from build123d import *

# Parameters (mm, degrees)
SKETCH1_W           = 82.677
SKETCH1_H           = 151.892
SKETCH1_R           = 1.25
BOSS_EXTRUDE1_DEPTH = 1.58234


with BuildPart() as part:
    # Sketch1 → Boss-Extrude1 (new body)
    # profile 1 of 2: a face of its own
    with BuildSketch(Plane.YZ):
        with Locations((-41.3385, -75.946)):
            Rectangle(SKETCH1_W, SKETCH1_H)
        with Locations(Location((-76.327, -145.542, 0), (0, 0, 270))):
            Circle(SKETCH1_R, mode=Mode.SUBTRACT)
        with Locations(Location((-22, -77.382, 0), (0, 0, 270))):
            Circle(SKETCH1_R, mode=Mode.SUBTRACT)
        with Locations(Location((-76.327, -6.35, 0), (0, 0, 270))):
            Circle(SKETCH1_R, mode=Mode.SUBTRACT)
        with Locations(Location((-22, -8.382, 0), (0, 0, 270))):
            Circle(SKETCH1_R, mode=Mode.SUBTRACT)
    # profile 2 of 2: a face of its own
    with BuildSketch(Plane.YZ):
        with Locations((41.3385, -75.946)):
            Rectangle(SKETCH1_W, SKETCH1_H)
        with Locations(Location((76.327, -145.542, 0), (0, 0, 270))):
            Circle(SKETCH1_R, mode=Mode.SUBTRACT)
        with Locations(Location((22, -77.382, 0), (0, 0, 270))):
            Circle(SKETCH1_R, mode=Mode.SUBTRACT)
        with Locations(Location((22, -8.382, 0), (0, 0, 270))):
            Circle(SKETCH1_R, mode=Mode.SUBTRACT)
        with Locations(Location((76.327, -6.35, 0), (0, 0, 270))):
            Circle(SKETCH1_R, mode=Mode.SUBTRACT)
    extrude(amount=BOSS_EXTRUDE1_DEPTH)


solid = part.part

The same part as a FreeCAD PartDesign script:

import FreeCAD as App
import Part
import Sketcher

V = App.Vector
Q = App.Units.Quantity


def add_polygon(sketch, points):
    """Adds a closed chain of lines whose ends are joined by coincident constraints."""
    first, n = sketch.GeometryCount, len(points)
    for a, b in zip(points, points[1:] + points[:1]):
        sketch.addGeometry(Part.LineSegment(App.Vector(*a, 0), App.Vector(*b, 0)), False)
    for i in range(n):
        sketch.addConstraint(Sketcher.Constraint("Coincident", first + i, 2, first + (i + 1) % n, 1))

doc = App.newDocument("Part")
body = doc.addObject("PartDesign::Body", "Body")

# Sketch on YZ plane
sketch1 = doc.addObject("Sketcher::SketchObject", "Sketch")
body.addObject(sketch1)
sketch1.AttachmentSupport = (doc.YZ_Plane, [""])
sketch1.MapMode = "FlatFace"
add_polygon(sketch1, [(-82.7, 0), (-82.7, -151.9), (82.7, -151.9), (82.7, 0)])  # lines 0-3
sketch1.addGeometry(Part.Circle(V(-76.3, -145.5, 0), V(0, 0, 1), 1.2), False)  # 4
sketch1.addGeometry(Part.Circle(V(-22, -77.4, 0), V(0, 0, 1), 1.2), False)  # 5
sketch1.addGeometry(Part.Circle(V(-76.3, -6.3, 0), V(0, 0, 1), 1.2), False)  # 6
sketch1.addGeometry(Part.Circle(V(-22, -8.4, 0), V(0, 0, 1), 1.2), False)  # 7
sketch1.addGeometry(Part.Circle(V(76.3, -6.3, 0), V(0, 0, 1), 1.2), False)  # 8
sketch1.addGeometry(Part.Circle(V(22, -77.4, 0), V(0, 0, 1), 1.2), False)  # 9
sketch1.addGeometry(Part.Circle(V(76.3, -145.5, 0), V(0, 0, 1), 1.2), False)  # 10
sketch1.addGeometry(Part.Circle(V(22, -8.4, 0), V(0, 0, 1), 1.2), False)  # 11
sketch1.addConstraint(Sketcher.Constraint("Vertical", 0))
sketch1.addConstraint(Sketcher.Constraint("Horizontal", 1))
sketch1.addConstraint(Sketcher.Constraint("Vertical", 2))
sketch1.addConstraint(Sketcher.Constraint("Horizontal", 3))
sketch1.addConstraint(Sketcher.Constraint("Equal", 4, 5))
sketch1.addConstraint(Sketcher.Constraint("Equal", 5, 6))
sketch1.addConstraint(Sketcher.Constraint("Equal", 6, 7))
sketch1.addConstraint(Sketcher.Constraint("Equal", 7, 8))
sketch1.addConstraint(Sketcher.Constraint("Equal", 8, 9))
sketch1.addConstraint(Sketcher.Constraint("Equal", 9, 10))
sketch1.addConstraint(Sketcher.Constraint("Equal", 10, 11))
sketch1.addConstraint(Sketcher.Constraint("Symmetric", 2, 2, 3, 2, -1, 1))
sketch1.addConstraint(Sketcher.Constraint("Symmetric", 6, 3, 8, 3, -2))
sketch1.addConstraint(Sketcher.Constraint("Symmetric", 5, 3, 9, 3, -2))
sketch1.addConstraint(Sketcher.Constraint("Symmetric", 4, 3, 10, 3, -2))
sketch1.addConstraint(Sketcher.Constraint("Symmetric", 7, 3, 11, 3, -2))
sketch1.addConstraint(Sketcher.Constraint("Vertical", 4, 3, 6, 3))
sketch1.addConstraint(Sketcher.Constraint("Vertical", 5, 3, 7, 3))
sketch1.addConstraint(Sketcher.Constraint("DistanceX", 1, 1, 1, 2, Q("6.51 in")))
sketch1.addConstraint(Sketcher.Constraint("DistanceY", 0, 2, 0, 1, Q("5.98 in")))
sketch1.addConstraint(Sketcher.Constraint("DistanceY", 4, 3, 7, 3, Q("5.4 in")))
sketch1.addConstraint(Sketcher.Constraint("Diameter", 4, 2.5))
sketch1.addConstraint(Sketcher.Constraint("DistanceY", 4, 3, -1, 1, Q("5.73 in")))
sketch1.addConstraint(Sketcher.Constraint("DistanceY", 6, 3, -1, 1, Q("0.25 in")))
sketch1.addConstraint(Sketcher.Constraint("DistanceX", 6, 3, 8, 3, Q("6.01 in")))
sketch1.addConstraint(Sketcher.Constraint("DistanceX", 5, 3, -1, 1, 22.0))
sketch1.addConstraint(Sketcher.Constraint("DistanceY", 5, 3, -1, 1, 77.382))
pad1 = doc.addObject("PartDesign::Pad", "Pad")
body.addObject(pad1)
pad1.Profile = sketch1
pad1.Length = 1.58234

doc.recompute()
